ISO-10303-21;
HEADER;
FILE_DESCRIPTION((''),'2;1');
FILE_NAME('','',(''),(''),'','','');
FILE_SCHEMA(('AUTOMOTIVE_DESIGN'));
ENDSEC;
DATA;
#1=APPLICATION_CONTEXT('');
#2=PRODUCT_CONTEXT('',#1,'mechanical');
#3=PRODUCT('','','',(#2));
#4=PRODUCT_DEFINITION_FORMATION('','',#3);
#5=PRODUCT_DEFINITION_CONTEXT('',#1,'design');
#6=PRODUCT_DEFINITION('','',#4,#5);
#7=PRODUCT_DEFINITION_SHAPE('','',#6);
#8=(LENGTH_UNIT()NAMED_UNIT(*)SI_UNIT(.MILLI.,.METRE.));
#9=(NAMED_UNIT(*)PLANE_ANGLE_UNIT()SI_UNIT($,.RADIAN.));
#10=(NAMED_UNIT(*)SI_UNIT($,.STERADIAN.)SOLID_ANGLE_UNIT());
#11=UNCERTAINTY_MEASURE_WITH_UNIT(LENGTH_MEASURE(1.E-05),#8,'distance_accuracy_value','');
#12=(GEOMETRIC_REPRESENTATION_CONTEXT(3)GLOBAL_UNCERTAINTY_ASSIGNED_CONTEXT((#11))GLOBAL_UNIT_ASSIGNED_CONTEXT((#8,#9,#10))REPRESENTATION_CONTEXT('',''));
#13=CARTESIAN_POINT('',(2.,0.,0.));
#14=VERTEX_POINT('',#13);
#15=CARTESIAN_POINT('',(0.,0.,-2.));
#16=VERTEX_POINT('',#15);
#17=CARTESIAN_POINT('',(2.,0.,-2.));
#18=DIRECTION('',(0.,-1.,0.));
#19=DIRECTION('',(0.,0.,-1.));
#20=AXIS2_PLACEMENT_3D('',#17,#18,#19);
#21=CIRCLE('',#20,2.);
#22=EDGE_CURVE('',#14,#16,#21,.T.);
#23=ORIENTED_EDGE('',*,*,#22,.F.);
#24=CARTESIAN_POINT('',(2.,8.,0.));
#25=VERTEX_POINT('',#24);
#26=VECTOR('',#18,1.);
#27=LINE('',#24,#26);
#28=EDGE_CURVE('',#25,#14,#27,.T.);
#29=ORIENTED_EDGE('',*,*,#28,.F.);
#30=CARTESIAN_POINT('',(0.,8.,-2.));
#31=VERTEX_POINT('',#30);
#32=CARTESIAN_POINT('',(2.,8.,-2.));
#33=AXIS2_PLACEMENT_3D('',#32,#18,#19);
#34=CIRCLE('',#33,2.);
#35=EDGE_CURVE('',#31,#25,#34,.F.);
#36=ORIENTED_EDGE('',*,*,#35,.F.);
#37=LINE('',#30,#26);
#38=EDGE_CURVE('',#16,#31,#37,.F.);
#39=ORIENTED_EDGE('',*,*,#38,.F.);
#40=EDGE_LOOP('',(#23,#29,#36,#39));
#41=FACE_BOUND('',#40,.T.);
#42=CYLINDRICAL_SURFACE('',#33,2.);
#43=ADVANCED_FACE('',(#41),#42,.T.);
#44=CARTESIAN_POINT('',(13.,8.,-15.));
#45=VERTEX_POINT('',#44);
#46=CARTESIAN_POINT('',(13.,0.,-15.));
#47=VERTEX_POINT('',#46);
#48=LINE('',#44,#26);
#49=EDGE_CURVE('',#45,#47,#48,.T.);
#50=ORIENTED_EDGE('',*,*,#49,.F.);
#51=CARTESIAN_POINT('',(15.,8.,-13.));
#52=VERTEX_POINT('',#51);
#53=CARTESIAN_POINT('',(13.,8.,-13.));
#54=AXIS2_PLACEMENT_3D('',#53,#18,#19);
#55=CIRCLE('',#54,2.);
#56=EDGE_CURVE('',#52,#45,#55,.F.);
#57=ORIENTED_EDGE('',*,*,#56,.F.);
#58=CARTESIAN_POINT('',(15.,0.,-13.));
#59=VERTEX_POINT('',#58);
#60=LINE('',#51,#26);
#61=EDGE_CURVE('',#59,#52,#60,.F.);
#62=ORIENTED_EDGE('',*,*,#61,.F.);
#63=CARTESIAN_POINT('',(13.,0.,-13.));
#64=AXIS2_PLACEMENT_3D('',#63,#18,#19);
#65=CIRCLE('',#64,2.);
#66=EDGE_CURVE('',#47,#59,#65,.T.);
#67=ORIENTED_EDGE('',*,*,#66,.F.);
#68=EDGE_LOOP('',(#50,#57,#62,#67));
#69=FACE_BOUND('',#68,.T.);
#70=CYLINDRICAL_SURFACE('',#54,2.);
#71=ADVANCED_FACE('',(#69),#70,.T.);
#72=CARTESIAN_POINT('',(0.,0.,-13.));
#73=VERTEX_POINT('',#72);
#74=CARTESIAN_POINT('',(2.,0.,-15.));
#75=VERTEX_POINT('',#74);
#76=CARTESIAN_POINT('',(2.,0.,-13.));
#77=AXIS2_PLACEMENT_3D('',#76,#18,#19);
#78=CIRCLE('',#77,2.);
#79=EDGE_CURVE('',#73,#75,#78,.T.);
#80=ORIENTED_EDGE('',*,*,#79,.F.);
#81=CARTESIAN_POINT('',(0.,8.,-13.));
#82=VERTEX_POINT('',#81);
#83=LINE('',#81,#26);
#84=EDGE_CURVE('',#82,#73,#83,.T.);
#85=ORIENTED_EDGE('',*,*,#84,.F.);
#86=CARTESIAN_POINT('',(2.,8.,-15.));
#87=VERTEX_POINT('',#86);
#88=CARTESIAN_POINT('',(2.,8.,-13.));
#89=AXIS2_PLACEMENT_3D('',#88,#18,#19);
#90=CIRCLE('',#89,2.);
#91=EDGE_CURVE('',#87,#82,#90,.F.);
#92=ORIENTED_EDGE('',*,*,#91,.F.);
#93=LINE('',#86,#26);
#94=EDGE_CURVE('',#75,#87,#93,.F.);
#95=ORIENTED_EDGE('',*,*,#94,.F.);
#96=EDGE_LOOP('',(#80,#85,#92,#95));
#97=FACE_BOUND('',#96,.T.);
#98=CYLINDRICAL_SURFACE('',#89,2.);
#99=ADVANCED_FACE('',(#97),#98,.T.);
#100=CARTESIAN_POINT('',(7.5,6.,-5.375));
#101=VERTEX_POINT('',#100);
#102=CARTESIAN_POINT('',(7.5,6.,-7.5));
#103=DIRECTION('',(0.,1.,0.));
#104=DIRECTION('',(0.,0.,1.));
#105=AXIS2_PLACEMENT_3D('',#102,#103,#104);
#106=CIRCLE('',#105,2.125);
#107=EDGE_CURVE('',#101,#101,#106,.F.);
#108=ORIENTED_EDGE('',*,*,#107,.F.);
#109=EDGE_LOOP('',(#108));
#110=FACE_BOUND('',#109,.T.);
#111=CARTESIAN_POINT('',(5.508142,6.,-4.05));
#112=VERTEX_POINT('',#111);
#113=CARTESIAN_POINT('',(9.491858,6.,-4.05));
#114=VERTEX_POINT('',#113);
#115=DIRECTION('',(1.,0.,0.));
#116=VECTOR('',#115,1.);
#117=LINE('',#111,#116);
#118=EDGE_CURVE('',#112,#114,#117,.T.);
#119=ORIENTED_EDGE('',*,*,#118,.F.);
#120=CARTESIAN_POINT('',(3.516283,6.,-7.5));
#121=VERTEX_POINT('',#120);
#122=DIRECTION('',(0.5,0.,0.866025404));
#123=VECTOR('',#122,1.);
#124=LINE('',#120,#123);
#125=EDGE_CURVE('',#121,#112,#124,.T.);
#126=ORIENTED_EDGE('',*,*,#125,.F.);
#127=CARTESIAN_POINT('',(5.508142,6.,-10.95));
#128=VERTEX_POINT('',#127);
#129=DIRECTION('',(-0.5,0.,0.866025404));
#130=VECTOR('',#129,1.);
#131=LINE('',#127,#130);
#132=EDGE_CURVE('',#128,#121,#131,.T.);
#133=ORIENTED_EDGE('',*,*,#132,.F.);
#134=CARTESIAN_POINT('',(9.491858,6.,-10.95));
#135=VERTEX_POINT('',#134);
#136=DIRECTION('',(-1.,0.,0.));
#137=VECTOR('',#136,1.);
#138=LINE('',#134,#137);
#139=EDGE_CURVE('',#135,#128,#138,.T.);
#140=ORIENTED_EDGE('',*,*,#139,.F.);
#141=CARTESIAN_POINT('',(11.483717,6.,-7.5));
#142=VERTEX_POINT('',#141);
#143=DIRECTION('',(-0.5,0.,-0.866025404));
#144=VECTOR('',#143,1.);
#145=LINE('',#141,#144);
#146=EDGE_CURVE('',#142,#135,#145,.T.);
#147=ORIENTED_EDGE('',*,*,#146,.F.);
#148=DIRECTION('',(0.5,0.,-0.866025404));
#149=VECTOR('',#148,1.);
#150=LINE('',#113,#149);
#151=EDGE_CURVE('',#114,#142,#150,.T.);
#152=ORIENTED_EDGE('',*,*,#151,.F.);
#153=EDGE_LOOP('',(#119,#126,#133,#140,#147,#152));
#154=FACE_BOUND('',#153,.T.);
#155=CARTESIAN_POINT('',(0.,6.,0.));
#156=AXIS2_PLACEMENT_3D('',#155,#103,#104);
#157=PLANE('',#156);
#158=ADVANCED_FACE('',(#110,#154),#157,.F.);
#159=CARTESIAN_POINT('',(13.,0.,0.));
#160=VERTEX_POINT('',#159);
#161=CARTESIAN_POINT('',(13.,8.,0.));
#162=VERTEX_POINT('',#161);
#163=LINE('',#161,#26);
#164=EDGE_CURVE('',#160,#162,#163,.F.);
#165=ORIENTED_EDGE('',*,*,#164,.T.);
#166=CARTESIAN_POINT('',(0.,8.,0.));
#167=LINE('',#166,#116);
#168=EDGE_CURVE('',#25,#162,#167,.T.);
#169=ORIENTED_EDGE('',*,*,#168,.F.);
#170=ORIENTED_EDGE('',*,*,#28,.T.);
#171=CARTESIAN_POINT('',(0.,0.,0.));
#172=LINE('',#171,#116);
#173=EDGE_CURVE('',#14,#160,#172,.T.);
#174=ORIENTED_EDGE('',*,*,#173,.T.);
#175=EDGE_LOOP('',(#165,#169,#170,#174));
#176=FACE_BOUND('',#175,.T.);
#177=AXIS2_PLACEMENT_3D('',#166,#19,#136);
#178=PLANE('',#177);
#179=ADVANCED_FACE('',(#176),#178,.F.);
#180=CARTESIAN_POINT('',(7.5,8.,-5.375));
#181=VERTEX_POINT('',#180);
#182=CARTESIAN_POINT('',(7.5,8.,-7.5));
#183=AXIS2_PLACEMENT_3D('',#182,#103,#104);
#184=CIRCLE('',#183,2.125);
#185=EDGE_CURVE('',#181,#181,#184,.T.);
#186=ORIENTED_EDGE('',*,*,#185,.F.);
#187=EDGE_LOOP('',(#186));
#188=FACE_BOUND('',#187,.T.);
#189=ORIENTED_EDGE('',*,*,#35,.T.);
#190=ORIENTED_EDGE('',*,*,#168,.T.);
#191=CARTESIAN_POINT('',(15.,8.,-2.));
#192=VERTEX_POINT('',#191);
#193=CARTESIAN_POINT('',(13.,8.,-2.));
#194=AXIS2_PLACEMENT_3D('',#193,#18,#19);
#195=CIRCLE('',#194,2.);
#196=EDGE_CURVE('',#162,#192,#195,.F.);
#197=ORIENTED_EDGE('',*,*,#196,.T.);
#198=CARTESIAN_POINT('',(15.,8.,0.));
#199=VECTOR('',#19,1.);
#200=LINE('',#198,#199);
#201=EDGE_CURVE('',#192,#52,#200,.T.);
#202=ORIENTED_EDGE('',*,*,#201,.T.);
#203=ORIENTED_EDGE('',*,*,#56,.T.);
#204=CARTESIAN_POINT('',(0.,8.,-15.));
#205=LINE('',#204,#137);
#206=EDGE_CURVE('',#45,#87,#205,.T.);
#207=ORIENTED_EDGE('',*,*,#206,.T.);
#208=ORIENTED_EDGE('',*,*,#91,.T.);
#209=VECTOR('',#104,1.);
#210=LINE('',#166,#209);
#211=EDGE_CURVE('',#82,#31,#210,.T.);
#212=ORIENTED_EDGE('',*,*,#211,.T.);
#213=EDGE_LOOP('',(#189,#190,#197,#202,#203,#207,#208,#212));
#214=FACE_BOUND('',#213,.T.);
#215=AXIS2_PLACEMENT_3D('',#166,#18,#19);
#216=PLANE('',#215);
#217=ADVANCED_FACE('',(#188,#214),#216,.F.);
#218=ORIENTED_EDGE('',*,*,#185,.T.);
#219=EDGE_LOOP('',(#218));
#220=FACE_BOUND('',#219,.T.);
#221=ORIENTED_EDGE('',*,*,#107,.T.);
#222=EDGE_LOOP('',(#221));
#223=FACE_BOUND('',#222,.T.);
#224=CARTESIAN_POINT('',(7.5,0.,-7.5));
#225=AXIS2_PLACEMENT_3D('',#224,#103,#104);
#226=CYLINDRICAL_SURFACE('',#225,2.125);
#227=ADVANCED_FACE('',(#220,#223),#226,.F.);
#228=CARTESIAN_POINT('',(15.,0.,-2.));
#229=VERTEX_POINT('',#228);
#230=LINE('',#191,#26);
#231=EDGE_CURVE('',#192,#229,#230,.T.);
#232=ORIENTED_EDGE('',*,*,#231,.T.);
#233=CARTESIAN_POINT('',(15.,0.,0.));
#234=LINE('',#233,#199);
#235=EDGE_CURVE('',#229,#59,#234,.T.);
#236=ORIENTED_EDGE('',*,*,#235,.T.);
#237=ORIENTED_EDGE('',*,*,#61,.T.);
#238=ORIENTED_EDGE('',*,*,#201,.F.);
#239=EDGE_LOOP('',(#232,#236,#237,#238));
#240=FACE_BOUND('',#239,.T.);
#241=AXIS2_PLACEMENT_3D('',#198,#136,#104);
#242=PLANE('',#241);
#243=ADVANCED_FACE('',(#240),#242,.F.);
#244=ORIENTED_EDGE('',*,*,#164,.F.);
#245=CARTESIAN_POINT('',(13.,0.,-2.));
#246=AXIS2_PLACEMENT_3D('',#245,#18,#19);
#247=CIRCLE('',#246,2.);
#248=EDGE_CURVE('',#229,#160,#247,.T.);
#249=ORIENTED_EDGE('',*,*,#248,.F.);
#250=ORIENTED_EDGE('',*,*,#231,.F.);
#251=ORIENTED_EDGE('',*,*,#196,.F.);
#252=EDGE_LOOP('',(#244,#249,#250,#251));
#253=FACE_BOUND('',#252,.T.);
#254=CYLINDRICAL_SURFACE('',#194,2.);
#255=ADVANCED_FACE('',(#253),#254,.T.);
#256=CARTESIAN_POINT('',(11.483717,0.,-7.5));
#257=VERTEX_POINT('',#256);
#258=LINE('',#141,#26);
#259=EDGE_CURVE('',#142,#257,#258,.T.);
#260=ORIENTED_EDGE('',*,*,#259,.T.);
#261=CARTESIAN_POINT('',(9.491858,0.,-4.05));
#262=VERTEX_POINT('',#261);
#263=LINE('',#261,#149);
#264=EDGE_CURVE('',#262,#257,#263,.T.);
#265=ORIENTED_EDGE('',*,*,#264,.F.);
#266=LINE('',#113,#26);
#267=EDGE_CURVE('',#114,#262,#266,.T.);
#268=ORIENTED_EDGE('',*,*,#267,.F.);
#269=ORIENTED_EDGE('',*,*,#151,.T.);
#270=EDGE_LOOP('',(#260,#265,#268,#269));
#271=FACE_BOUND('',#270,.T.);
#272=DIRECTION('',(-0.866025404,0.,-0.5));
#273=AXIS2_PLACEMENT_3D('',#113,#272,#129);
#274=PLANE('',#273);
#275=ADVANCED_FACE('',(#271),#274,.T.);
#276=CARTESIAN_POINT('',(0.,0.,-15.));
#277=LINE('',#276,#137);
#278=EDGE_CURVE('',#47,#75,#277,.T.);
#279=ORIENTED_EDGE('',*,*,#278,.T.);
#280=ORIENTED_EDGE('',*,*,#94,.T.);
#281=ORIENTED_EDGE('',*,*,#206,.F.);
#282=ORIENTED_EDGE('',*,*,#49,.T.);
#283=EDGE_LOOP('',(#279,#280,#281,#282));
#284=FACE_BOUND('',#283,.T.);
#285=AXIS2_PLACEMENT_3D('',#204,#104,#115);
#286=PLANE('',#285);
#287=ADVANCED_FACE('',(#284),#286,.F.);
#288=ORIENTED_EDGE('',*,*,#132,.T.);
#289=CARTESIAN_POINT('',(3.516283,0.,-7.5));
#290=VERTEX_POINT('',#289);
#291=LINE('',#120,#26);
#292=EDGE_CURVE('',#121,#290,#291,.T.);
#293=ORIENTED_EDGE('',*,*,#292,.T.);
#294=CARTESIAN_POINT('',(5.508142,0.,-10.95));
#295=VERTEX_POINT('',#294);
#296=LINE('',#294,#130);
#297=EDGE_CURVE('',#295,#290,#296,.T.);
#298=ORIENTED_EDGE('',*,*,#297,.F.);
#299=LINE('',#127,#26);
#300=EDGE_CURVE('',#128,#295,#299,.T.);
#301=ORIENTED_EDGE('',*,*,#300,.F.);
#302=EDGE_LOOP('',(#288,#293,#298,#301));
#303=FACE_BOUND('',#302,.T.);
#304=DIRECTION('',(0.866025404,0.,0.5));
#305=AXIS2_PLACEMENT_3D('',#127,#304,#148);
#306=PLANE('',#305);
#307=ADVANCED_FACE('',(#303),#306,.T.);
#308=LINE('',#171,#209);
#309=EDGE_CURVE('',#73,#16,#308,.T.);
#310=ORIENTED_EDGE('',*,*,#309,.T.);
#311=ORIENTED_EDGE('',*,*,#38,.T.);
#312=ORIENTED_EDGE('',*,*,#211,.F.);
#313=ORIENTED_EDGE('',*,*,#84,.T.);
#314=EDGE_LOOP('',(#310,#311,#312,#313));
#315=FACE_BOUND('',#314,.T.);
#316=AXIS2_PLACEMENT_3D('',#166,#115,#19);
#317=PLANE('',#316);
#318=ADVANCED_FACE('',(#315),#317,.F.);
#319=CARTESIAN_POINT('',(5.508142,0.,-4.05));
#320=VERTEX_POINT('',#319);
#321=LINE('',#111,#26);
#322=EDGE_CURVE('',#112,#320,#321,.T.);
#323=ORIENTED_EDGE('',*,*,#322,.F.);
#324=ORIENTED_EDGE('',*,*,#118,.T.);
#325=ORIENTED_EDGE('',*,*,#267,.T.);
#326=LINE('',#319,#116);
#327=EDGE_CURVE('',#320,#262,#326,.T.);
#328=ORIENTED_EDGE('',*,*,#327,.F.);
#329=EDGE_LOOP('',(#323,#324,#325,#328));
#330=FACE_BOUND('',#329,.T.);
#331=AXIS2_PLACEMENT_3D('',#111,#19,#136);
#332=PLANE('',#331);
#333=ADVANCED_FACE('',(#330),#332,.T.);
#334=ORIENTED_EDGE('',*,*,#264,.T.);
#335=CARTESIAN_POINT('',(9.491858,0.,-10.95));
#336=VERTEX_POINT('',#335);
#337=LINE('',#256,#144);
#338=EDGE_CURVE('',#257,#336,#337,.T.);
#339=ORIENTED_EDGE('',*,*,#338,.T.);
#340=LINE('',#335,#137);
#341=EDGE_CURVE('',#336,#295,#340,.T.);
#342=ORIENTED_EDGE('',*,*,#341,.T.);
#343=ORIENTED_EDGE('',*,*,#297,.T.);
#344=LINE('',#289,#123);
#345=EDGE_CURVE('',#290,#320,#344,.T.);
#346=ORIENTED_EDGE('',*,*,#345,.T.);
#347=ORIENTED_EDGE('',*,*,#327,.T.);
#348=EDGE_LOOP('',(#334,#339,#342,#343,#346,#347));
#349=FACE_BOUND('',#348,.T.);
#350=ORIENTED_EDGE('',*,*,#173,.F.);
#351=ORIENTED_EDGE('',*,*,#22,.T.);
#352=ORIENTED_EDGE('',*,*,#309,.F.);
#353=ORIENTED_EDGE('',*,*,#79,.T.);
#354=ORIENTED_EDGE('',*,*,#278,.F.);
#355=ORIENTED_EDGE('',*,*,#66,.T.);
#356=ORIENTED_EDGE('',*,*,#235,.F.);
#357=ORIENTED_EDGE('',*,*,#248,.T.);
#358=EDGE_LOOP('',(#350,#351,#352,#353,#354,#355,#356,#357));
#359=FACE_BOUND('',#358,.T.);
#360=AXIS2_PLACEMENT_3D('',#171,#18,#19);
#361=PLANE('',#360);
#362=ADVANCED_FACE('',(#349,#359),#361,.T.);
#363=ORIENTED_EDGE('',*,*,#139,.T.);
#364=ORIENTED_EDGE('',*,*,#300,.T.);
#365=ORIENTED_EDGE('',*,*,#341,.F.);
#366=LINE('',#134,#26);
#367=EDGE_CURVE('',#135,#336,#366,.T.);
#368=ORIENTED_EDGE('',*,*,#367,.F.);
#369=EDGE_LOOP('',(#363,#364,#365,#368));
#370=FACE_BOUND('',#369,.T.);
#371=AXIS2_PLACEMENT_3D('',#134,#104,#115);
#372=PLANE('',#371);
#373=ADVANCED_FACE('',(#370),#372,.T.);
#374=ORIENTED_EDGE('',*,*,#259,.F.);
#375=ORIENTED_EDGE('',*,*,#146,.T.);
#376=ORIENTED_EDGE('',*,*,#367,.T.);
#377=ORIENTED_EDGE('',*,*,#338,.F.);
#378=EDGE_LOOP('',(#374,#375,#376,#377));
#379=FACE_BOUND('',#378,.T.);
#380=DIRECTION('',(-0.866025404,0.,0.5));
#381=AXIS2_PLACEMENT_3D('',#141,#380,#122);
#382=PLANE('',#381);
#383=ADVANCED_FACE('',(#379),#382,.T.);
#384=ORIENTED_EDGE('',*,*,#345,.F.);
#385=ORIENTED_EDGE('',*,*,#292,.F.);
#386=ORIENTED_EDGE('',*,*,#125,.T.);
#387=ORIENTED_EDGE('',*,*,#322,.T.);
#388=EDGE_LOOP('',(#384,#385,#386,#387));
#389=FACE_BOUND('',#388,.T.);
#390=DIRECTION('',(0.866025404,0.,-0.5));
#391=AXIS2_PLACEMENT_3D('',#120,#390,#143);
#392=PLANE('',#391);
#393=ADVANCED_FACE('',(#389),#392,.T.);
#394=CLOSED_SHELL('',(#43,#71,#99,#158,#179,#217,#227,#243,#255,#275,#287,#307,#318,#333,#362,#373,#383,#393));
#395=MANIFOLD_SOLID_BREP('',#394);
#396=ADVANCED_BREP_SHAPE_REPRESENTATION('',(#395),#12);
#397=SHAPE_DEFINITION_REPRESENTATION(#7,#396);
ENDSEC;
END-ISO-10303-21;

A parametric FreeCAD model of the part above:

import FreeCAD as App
import Part
import Sketcher
from FreeCAD import Vector
Q = App.Units.Quantity


def edges_at(feature, points):
    """Names of the edges that pass closest to the given points."""
    edges = feature.Shape.Edges
    near = lambda p: min(range(len(edges)), key=lambda i: edges[i].distToShape(Part.Vertex(*p))[0])
    return sorted({f"Edge{near(p) + 1}" for p in points})


def add_polygon(sketch, points):
    """Adds a closed chain of lines whose ends are joined by coincident constraints."""
    first, n = sketch.GeometryCount, len(points)
    for a, b in zip(points, points[1:] + points[:1]):
        sketch.addGeometry(Part.LineSegment(App.Vector(*a, 0), App.Vector(*b, 0)), False)
    for i in range(n):
        sketch.addConstraint(Sketcher.Constraint("Coincident", first + i, 2, first + (i + 1) % n, 1))

doc = App.newDocument("Part")
body = doc.addObject("PartDesign::Body", "Body")

# Sketch on XZ plane
sketch1 = body.newObject("Sketcher::SketchObject", "Sketch")
sketch1.AttachmentSupport = (doc.getObject("XZ_Plane"), [""])
sketch1.MapMode = "FlatFace"
add_polygon(sketch1, [(0, -15), (0, 0), (15, 0), (15, -15)])  # lines 0-3
sketch1.addConstraint(Sketcher.Constraint("Vertical", 0))
sketch1.addConstraint(Sketcher.Constraint("Horizontal", 1))
sketch1.addConstraint(Sketcher.Constraint("Vertical", 2))
sketch1.addConstraint(Sketcher.Constraint("Horizontal", 3))
sketch1.addConstraint(Sketcher.Constraint("Coincident", 0, 2, -1, 1))
sketch1.addConstraint(Sketcher.Constraint("Equal", 3, 0))
sketch1.addConstraint(Sketcher.Constraint("DistanceX", 1, 1, 1, 2, Q("15 mm")))
pad1 = body.newObject("PartDesign::Pad", "Pad")
pad1.Profile = sketch1
pad1.Length = 8
pad1.Reversed = True

# Sketch on XZ plane
sketch2 = body.newObject("Sketcher::SketchObject", "Sketch001")
sketch2.AttachmentSupport = (doc.getObject("XZ_Plane"), [""])
sketch2.MapMode = "FlatFace"
sketch2.AttachmentOffset = App.Placement(Vector(0, 0, -8), App.Rotation())
sketch2.addGeometry(Part.Circle(Vector(7.5, -7.5, 0), Vector(0, 0, 1), 2.1), False)
sketch2.addConstraint(Sketcher.Constraint("Diameter", 0, Q("4.25 mm")))
sketch2.addConstraint(Sketcher.Constraint("DistanceX", -1, 1, 0, 3, Q("7.5 mm")))
sketch2.addConstraint(Sketcher.Constraint("DistanceY", 0, 3, -1, 1, Q("7.5 mm")))
pocket1 = body.newObject("PartDesign::Pocket", "Pocket")
pocket1.Profile = sketch2
pocket1.Type = "ThroughAll"
pocket1.Reversed = True

# Sketch on XZ plane
sketch3 = body.newObject("Sketcher::SketchObject", "Sketch002")
sketch3.AttachmentSupport = (doc.getObject("XZ_Plane"), [""])
sketch3.MapMode = "FlatFace"
add_polygon(sketch3, [(11.5, -7.5), (9.5, -10.9), (5.5, -10.9), (3.5, -7.5), (5.5, -4), (9.5, -4)])  # lines 0-5
sketch3.addConstraint(Sketcher.Constraint("Horizontal", 1))
sketch3.addConstraint(Sketcher.Constraint("Horizontal", 4))
sketch3.addConstraint(Sketcher.Constraint("Parallel", 0, 3))
sketch3.addConstraint(Sketcher.Constraint("Parallel", 2, 5))
sketch3.addConstraint(Sketcher.Constraint("Horizontal", 2, 2, 5, 2))
sketch3.addConstraint(Sketcher.Constraint("Vertical", 1, 2, 3, 2))
sketch3.addConstraint(Sketcher.Constraint("Vertical", 0, 2, 4, 2))
sketch3.addConstraint(Sketcher.Constraint("Angle", 0, Q("-120 deg")))
sketch3.addConstraint(Sketcher.Constraint("DistanceY", 2, 2, -1, 1, Q("7.5 mm")))
sketch3.addConstraint(Sketcher.Constraint("DistanceY", 1, 2, 3, 2, Q("6.9 mm")))
sketch3.addConstraint(Sketcher.Constraint("DistanceX", 1, 2, 1, 1, Q("3.983717 mm")))
sketch3.addConstraint(Sketcher.Constraint("DistanceX", -1, 1, 0, 2, Q("9.491858 mm")))
pocket2 = body.newObject("PartDesign::Pocket", "Pocket001")
pocket2.Profile = sketch3
pocket2.Length = 6
doc.recompute()

fillet = body.newObject("PartDesign::Fillet", "Fillet")
fillet.Base = (pocket2, edges_at(pocket2, [
    (0, 4, -15),
    (15, 4, -15),
    (15, 4, 0),
    (0, 4, 0),
]))
fillet.Radius = 2

doc.recompute()
